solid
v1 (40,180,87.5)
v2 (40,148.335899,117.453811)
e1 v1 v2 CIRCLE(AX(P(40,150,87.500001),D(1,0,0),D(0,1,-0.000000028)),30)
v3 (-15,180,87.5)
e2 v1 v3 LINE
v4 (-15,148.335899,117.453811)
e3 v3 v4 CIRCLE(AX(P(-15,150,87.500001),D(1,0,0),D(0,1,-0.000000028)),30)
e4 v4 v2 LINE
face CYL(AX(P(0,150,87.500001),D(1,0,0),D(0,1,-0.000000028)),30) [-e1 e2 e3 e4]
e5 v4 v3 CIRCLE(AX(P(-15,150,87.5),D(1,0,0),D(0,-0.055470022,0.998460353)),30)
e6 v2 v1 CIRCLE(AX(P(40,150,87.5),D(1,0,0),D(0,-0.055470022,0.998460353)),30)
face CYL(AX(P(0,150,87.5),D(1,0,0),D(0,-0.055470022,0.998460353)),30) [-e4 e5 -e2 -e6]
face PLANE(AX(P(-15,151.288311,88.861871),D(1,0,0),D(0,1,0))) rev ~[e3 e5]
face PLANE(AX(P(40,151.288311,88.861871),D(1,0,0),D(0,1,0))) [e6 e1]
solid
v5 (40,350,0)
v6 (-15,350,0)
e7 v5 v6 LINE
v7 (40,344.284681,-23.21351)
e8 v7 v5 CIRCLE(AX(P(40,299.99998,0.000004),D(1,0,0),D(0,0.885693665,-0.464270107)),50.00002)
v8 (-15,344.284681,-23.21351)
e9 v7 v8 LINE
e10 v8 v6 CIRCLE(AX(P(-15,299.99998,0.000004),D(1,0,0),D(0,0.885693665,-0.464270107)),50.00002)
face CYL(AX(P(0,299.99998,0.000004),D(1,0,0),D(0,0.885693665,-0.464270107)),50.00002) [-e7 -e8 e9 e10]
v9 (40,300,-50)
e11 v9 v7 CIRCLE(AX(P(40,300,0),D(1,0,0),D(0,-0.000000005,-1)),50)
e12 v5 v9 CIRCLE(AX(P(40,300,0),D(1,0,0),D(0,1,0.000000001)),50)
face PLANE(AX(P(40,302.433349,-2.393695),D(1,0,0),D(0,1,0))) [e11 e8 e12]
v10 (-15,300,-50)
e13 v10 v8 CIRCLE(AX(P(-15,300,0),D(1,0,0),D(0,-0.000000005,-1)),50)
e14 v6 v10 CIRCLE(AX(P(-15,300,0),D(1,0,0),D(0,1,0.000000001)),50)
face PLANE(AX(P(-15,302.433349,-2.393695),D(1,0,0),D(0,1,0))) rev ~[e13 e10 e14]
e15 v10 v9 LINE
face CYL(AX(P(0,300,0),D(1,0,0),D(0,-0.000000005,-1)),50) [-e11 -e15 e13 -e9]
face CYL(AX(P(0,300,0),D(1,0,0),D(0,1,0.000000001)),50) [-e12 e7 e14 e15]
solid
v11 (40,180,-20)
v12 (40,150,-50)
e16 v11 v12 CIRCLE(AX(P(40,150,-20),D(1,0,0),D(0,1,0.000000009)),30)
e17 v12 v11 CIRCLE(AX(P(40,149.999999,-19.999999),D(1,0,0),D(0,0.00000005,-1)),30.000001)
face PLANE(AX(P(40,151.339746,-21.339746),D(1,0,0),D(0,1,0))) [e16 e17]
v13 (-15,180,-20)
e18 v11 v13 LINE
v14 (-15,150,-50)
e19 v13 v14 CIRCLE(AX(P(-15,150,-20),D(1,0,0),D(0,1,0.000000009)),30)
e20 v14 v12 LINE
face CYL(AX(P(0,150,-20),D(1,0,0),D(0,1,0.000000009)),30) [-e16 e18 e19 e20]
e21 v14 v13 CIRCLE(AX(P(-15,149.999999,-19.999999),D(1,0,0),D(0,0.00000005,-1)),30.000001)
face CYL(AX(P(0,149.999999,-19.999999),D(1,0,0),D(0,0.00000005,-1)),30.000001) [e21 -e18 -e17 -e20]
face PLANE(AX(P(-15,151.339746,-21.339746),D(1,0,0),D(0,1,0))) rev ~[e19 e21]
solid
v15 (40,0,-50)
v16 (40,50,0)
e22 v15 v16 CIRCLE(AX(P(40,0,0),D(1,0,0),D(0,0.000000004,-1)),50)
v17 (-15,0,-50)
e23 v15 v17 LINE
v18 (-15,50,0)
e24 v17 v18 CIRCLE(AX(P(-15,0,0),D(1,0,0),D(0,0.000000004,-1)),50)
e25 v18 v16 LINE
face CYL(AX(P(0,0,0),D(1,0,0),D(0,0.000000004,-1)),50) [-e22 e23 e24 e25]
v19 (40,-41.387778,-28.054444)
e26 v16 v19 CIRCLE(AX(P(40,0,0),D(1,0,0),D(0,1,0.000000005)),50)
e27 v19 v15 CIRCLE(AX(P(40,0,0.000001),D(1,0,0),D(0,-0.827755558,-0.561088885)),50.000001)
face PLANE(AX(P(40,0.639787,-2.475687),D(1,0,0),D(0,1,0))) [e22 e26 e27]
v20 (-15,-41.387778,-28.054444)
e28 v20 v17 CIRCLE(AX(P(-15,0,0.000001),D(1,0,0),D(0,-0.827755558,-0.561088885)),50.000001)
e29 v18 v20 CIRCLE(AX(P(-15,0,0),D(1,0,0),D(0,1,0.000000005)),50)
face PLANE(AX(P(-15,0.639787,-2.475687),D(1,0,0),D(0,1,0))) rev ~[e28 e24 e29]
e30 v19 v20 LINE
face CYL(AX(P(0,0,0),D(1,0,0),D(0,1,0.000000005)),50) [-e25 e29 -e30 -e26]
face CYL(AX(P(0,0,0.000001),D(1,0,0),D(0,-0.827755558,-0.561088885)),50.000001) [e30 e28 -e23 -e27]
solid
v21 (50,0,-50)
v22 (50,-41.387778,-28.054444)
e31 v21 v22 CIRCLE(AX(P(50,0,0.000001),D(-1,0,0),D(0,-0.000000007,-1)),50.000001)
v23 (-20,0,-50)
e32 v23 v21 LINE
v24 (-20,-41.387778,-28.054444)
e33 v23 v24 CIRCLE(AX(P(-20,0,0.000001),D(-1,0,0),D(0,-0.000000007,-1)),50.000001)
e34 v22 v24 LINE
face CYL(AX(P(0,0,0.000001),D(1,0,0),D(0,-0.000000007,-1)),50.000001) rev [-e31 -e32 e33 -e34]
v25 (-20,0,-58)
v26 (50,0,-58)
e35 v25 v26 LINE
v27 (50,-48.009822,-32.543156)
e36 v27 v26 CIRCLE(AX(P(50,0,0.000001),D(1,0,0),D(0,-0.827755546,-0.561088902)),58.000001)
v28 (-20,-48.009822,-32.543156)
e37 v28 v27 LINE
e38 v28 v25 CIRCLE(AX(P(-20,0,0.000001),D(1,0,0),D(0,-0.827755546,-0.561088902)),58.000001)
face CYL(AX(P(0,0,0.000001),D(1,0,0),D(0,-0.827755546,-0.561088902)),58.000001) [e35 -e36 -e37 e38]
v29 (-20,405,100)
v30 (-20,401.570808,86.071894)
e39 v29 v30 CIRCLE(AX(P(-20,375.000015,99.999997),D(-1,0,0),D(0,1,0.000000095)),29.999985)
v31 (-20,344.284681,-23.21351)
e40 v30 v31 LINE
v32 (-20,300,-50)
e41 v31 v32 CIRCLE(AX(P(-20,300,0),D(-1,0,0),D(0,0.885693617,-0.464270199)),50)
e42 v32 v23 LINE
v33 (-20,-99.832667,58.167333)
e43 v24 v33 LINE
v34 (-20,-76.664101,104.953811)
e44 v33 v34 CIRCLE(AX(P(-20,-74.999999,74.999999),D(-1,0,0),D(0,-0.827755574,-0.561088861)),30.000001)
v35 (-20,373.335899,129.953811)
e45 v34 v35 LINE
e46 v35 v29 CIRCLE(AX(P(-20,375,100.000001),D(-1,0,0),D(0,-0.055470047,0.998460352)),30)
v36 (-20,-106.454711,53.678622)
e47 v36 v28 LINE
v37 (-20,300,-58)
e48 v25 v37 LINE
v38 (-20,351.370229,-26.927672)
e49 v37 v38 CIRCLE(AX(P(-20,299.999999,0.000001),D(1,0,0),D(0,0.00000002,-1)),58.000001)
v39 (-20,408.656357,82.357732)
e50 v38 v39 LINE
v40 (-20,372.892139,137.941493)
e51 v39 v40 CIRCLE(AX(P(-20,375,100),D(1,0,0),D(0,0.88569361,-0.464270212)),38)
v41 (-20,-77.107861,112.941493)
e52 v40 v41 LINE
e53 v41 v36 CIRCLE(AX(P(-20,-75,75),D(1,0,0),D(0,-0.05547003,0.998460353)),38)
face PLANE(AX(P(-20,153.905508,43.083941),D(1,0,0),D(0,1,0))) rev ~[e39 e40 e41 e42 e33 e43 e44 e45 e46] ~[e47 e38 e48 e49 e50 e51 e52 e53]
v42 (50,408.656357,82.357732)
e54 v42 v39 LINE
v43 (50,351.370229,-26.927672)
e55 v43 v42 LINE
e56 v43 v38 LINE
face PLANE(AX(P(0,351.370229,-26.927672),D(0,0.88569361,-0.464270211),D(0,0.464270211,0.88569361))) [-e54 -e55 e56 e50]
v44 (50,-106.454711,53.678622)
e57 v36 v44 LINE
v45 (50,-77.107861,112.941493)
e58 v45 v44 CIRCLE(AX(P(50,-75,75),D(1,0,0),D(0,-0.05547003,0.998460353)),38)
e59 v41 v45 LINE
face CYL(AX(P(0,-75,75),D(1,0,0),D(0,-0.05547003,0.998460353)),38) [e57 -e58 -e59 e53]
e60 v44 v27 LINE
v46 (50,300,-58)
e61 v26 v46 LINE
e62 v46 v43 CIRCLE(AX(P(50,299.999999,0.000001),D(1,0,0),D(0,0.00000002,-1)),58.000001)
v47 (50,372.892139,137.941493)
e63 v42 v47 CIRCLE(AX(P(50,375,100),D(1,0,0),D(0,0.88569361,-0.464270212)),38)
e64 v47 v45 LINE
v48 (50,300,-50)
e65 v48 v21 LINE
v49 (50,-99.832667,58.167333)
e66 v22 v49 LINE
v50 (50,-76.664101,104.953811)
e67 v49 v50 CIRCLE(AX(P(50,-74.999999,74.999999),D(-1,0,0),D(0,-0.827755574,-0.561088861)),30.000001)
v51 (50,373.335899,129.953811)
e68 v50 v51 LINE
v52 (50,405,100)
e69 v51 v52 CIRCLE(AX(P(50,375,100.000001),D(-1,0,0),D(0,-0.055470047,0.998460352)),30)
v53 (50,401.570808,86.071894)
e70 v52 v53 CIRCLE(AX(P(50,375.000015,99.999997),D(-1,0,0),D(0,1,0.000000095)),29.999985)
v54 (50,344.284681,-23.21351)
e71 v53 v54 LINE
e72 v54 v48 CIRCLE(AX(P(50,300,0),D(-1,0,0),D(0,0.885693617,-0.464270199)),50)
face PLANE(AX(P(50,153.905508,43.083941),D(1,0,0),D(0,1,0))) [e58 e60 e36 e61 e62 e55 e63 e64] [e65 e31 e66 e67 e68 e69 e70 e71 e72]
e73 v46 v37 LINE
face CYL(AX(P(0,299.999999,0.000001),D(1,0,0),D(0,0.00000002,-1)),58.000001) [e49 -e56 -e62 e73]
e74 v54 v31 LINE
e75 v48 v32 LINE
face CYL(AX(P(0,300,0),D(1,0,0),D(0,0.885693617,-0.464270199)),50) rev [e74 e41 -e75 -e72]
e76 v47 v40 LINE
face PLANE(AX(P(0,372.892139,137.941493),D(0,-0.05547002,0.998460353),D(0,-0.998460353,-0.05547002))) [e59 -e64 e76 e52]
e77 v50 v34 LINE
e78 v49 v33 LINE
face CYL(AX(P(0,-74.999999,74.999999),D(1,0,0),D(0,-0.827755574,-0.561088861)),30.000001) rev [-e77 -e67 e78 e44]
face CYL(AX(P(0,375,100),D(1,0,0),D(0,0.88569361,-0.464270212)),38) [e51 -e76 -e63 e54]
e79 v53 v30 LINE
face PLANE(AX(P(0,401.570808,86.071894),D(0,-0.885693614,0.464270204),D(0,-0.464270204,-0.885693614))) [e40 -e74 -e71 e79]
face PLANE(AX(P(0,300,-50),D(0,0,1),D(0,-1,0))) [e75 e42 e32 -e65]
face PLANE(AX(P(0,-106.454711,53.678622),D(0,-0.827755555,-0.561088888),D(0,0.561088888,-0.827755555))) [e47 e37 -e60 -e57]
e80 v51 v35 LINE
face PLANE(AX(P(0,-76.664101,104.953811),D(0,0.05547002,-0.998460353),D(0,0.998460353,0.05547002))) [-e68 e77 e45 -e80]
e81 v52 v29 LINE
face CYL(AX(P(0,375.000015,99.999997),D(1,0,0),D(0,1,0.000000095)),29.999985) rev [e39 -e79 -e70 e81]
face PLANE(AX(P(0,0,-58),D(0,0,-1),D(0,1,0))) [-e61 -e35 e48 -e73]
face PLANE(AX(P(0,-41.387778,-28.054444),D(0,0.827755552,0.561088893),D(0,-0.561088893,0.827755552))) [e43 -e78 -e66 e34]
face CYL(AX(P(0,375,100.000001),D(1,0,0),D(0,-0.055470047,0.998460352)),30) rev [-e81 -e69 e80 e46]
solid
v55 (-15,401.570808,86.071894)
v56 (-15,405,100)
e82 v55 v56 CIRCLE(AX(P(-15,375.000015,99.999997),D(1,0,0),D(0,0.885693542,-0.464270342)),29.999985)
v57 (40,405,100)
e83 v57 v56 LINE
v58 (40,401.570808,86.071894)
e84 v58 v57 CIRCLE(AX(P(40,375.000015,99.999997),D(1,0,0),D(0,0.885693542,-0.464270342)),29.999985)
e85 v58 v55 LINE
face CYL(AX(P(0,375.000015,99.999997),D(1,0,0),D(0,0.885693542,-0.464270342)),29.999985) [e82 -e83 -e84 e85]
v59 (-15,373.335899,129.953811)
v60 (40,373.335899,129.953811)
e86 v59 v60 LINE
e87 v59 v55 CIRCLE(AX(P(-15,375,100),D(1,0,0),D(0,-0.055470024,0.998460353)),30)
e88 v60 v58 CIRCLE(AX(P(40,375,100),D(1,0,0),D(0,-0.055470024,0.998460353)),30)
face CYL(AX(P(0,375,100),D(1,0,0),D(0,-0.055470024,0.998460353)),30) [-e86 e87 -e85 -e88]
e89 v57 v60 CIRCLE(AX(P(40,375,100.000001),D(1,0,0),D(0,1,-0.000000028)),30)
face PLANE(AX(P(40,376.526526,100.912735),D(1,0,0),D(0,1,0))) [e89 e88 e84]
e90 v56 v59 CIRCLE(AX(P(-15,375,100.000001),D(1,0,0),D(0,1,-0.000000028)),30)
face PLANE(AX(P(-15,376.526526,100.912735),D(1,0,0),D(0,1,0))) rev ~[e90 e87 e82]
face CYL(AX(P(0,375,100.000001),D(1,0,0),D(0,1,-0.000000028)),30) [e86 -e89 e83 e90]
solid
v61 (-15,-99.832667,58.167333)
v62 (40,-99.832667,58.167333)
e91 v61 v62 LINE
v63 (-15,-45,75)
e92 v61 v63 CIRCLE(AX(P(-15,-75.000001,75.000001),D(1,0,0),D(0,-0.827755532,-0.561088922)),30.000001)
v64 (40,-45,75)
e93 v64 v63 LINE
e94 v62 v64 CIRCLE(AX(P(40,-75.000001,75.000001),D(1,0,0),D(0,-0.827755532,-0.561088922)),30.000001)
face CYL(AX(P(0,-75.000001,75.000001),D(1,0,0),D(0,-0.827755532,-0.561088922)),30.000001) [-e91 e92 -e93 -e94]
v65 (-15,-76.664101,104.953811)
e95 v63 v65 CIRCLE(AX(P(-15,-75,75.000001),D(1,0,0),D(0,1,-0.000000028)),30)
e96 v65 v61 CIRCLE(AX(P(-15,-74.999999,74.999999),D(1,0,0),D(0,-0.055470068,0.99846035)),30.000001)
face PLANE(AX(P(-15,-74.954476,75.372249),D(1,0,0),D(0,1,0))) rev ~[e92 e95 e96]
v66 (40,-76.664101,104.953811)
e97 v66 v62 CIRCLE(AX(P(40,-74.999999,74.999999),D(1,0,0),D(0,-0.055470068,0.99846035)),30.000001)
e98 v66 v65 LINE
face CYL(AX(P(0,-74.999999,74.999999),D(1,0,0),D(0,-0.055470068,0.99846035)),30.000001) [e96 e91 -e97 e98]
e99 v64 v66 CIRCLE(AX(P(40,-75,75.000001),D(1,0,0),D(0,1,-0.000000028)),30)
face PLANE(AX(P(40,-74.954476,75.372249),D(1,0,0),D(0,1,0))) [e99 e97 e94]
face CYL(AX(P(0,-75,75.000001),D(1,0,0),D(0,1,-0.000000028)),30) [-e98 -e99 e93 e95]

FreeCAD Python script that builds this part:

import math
import FreeCAD as App
import Part
import Sketcher
from FreeCAD import Vector

doc = App.newDocument("Part")
params = doc.addObject("Spreadsheet::Sheet", "Params")
for row, (alias, value) in enumerate([
    ("sketch1_radius", "50 mm"),
    ("sketch1_radius2", "50.000001 mm"),
    ("sketch1_radius3", "30.000001 mm"),
    ("sketch1_radius4", "30 mm"),
    ("sketch1_radius5", "30 mm"),
    ("pad1_length", "40 mm"),
    ("pad1_length2", "15 mm"),
    ("sketch2_radius", "38 mm"),
    ("sketch2_radius2", "58.000001 mm"),
    ("sketch2_radius3", "50.000001 mm"),
    ("sketch2_width", "300 mm"),
    ("pad2_length", "50 mm"),
    ("pad2_length2", "20 mm"),
], start=1):
    params.set(f"A{row}", alias)
    params.set(f"B{row}", "=" + value)
    params.setAlias(f"B{row}", alias)

body = doc.addObject("PartDesign::Body", "Body")
body.AllowCompound = True

# Sketch on YZ plane
sketch1 = doc.addObject("Sketcher::SketchObject", "Sketch")
body.addObject(sketch1)
sketch1.AttachmentSupport = (doc.YZ_Plane, [""])
sketch1.MapMode = "FlatFace"
sketch1.addGeometry([
    Part.ArcOfCircle(Part.Circle(Vector(0, 0, 0), Vector(0, 0, 1), 50), math.radians(-90), math.radians(0)),  # 0
    Part.ArcOfCircle(Part.Circle(Vector(0, 0, 0), Vector(0, 0, 1), 50), math.radians(0), math.radians(214.131134)),  # 1
    Part.ArcOfCircle(Part.Circle(Vector(0, 0.000001, 0), Vector(0, 0, 1), 50.000001), math.radians(-145.868865), math.radians(-90)),  # 2
    Part.ArcOfCircle(Part.Circle(Vector(-74.999999, 74.999999, 0), Vector(0, 0, 1), 30.000001), math.radians(93.179833), math.radians(214.131133)),  # 3
    Part.ArcOfCircle(Part.Circle(Vector(-75.000001, 75.000001, 0), Vector(0, 0, 1), 30.000001), math.radians(-145.868863), math.radians(-0.000002)),  # 4
    Part.ArcOfCircle(Part.Circle(Vector(-75, 75.000001, 0), Vector(0, 0, 1), 30), math.radians(-0.000002), math.radians(93.179832)),  # 5
    Part.ArcOfCircle(Part.Circle(Vector(150, 87.500001, 0), Vector(0, 0, 1), 30), math.radians(-0.000002), math.radians(93.179832)),  # 6
    Part.ArcOfCircle(Part.Circle(Vector(150, 87.5, 0), Vector(0, 0, 1), 30), math.radians(93.17983), math.radians(360)),  # 7
    Part.ArcOfCircle(Part.Circle(Vector(300, 0, 0), Vector(0, 0, 1), 50), math.radians(0), math.radians(270)),  # 8
    Part.ArcOfCircle(Part.Circle(Vector(300, 0, 0), Vector(0, 0, 1), 50), math.radians(-90), math.radians(-27.663001)),  # 9
    Part.ArcOfCircle(Part.Circle(Vector(299.99998, 0.000004, 0), Vector(0, 0, 1), 50.00002), math.radians(-27.662995), math.radians(-0.000005)),  # 10
    Part.ArcOfCircle(Part.Circle(Vector(375, 100.000001, 0), Vector(0, 0, 1), 30), math.radians(-0.000002), math.radians(93.179832)),  # 11
    Part.ArcOfCircle(Part.Circle(Vector(375, 100, 0), Vector(0, 0, 1), 30), math.radians(93.17983), math.radians(332.336998)),  # 12
    Part.ArcOfCircle(Part.Circle(Vector(375.000015, 99.999997, 0), Vector(0, 0, 1), 29.999985), math.radians(-27.66301), math.radians(0.000005)),  # 13
    Part.ArcOfCircle(Part.Circle(Vector(150, -20, 0), Vector(0, 0, 1), 30), math.radians(0), math.radians(270)),  # 14
    Part.ArcOfCircle(Part.Circle(Vector(149.999999, -19.999999, 0), Vector(0, 0, 1), 30.000001), math.radians(-89.999997), math.radians(-0.000003)),  # 15
], False)
sketch1.addConstraint([
    Sketcher.Constraint("Coincident", 0, 2, 1, 1),
    Sketcher.Constraint("Coincident", 1, 2, 2, 1),
    Sketcher.Constraint("Coincident", 2, 2, 0, 1),
    Sketcher.Constraint("Coincident", 3, 2, 4, 1),
    Sketcher.Constraint("Coincident", 4, 2, 5, 1),
    Sketcher.Constraint("Coincident", 5, 2, 3, 1),
    Sketcher.Constraint("Coincident", 6, 1, 7, 2),
    Sketcher.Constraint("Coincident", 7, 1, 6, 2),
    Sketcher.Constraint("Coincident", 8, 2, 9, 1),
    Sketcher.Constraint("Coincident", 9, 2, 10, 1),
    Sketcher.Constraint("Coincident", 10, 2, 8, 1),
    Sketcher.Constraint("Coincident", 11, 2, 12, 1),
    Sketcher.Constraint("Coincident", 12, 2, 13, 1),
    Sketcher.Constraint("Coincident", 13, 2, 11, 1),
    Sketcher.Constraint("Coincident", 14, 1, 15, 2),
    Sketcher.Constraint("Coincident", 15, 1, 14, 2),
    Sketcher.Constraint("Coincident", 0, 3, -1, 1),
    Sketcher.Constraint("Coincident", 1, 3, -1, 1),
    Sketcher.Constraint("Coincident", 4, 3, 3, 3),
    Sketcher.Constraint("Coincident", 9, 3, 8, 3),
    Sketcher.Constraint("Coincident", 12, 3, 11, 3),
    Sketcher.Constraint("PointOnObject", 8, 3, -1),
    Sketcher.Constraint("PointOnObject", 0, 2, -1),
    Sketcher.Constraint("PointOnObject", 2, 2, -2),
    Sketcher.Constraint("PointOnObject", 10, 2, -1),
    Sketcher.Constraint("Radius", 0, 50.0),
    Sketcher.Constraint("Radius", 2, 50.000001),
    Sketcher.Constraint("Radius", 3, 30.000001),
    Sketcher.Constraint("Radius", 5, 30.0),
    Sketcher.Constraint("Radius", 6, 30.0),
    Sketcher.Constraint("Radius", 7, 30.0),
    Sketcher.Constraint("Radius", 8, 50.0),
    Sketcher.Constraint("Radius", 11, 30.0),
    Sketcher.Constraint("Radius", 14, 30.0),
    Sketcher.Constraint("Radius", 15, 30.000001),
    Sketcher.Constraint("DistanceX", 3, 3, -1, 1, 74.999999),
    Sketcher.Constraint("DistanceY", -1, 1, 3, 3, 74.999999),
    Sketcher.Constraint("DistanceX", -1, 1, 6, 3, 150.0),
    Sketcher.Constraint("DistanceX", -1, 1, 8, 3, 300.0),
    Sketcher.Constraint("DistanceX", -1, 1, 11, 3, 375.0),
    Sketcher.Constraint("DistanceY", -1, 1, 11, 3, 100.000001),
    Sketcher.Constraint("DistanceX", -1, 1, 14, 3, 150.0),
    Sketcher.Constraint("DistanceY", 14, 3, -1, 1, 20.0),
    Sketcher.Constraint("DistanceY", -1, 1, 4, 2, 75.0),
    Sketcher.Constraint("DistanceX", -1, 1, 8, 2, 300.0),
    Sketcher.Constraint("DistanceY", -1, 1, 13, 2, 100.0),
    Sketcher.Constraint("DistanceY", 14, 1, -1, 1, 20.0),
    Sketcher.Constraint("DistanceX", -1, 1, 15, 1, 150.0),
    Sketcher.Constraint("DistanceY", -1, 1, 6, 3, 87.500001),
    Sketcher.Constraint("DistanceY", -1, 1, 6, 1, 87.5),
    Sketcher.Constraint("Radius", 10, 50.00002),
    Sketcher.Constraint("Radius", 13, 29.999985),
    Sketcher.Constraint("DistanceX", 5, 2, -1, 1, 76.664101),
    Sketcher.Constraint("DistanceX", -1, 1, 7, 1, 148.335899),
    Sketcher.Constraint("DistanceX", -1, 1, 11, 2, 373.335899),
    Sketcher.Constraint("DistanceX", 10, 3, 9, 2, 44.284701),
    Sketcher.Constraint("DistanceX", 1, 2, 1, 3, 41.387778),
    Sketcher.Constraint("DistanceX", 3, 2, 3, 3, 24.832668),
    Sketcher.Constraint("DistanceX", 12, 3, 12, 2, 26.570808),
])
sketch1.setExpression("Constraints[25]", "Params.sketch1_radius")
sketch1.setExpression("Constraints[26]", "Params.sketch1_radius2")
sketch1.setExpression("Constraints[27]", "Params.sketch1_radius3")
sketch1.setExpression("Constraints[28]", "Params.sketch1_radius4")
sketch1.setExpression("Constraints[29]", "Params.sketch1_radius5")
pad1 = doc.addObject("PartDesign::Pad", "Pad")
body.addObject(pad1)
pad1.Profile = sketch1
pad1.Type = "TwoLengths"
pad1.setExpression("Length", "Params.pad1_length")
pad1.setExpression("Length2", "Params.pad1_length2")
body2 = doc.addObject("PartDesign::Body", "Body001")

# Sketch on YZ plane
sketch2 = doc.addObject("Sketcher::SketchObject", "Sketch001")
body2.addObject(sketch2)
sketch2.AttachmentSupport = (doc.getObject("YZ_Plane001"), [""])
sketch2.MapMode = "FlatFace"
sketch2.addGeometry([
    Part.LineSegment(Vector(373, 138, 0), Vector(-77, 113, 0)),  # 0
    Part.ArcOfCircle(Part.Circle(Vector(-75, 75, 0), Vector(0, 0, 1), 38), math.radians(93), math.radians(214)),  # 1
    Part.LineSegment(Vector(-106, 54, 0), Vector(-48, -33, 0)),  # 2
    Part.ArcOfCircle(Part.Circle(Vector(0, 0, 0), Vector(0, 0, 1), 58), math.radians(-146), math.radians(-90)),  # 3
    Part.LineSegment(Vector(0, -58, 0), Vector(300, -58, 0)),  # 4
    Part.ArcOfCircle(Part.Circle(Vector(300, 0, 0), Vector(0, 0, 1), 58), math.radians(-90), math.radians(-28)),  # 5
    Part.LineSegment(Vector(351, -27, 0), Vector(409, 82, 0)),  # 6
    Part.ArcOfCircle(Part.Circle(Vector(375, 100, 0), Vector(0, 0, 1), 38), math.radians(-28), math.radians(93)),  # 7
    Part.LineSegment(Vector(300, -50, 0), Vector(0, -50, 0)),  # 8
    Part.ArcOfCircle(Part.Circle(Vector(0, 0, 0), Vector(0, 0, 1), 50), math.radians(-146), math.radians(-90)),  # 9
    Part.LineSegment(Vector(-41, -28, 0), Vector(-100, 58, 0)),  # 10
    Part.ArcOfCircle(Part.Circle(Vector(-75, 75, 0), Vector(0, 0, 1), 30), math.radians(93), math.radians(214)),  # 11
    Part.LineSegment(Vector(-77, 105, 0), Vector(373, 130, 0)),  # 12
    Part.ArcOfCircle(Part.Circle(Vector(375, 100, 0), Vector(0, 0, 1), 30), math.radians(0), math.radians(93)),  # 13
    Part.ArcOfCircle(Part.Circle(Vector(375, 100, 0), Vector(0, 0, 1), 30), math.radians(-28), math.radians(0)),  # 14
    Part.LineSegment(Vector(402, 86, 0), Vector(344, -23, 0)),  # 15
    Part.ArcOfCircle(Part.Circle(Vector(300, 0, 0), Vector(0, 0, 1), 50), math.radians(-90), math.radians(-28)),  # 16
], False)
sketch2.addConstraint([
    Sketcher.Constraint("Tangent", 0, 2, 1, 1),
    Sketcher.Constraint("Tangent", 1, 2, 2, 1),
    Sketcher.Constraint("Tangent", 2, 2, 3, 1),
    Sketcher.Constraint("Tangent", 3, 2, 4, 1),
    Sketcher.Constraint("Tangent", 4, 2, 5, 1),
    Sketcher.Constraint("Tangent", 5, 2, 6, 1),
    Sketcher.Constraint("Tangent", 6, 2, 7, 1),
    Sketcher.Constraint("Tangent", 7, 2, 0, 1),
    Sketcher.Constraint("Tangent", 8, 2, 9, 2),
    Sketcher.Constraint("Tangent", 9, 1, 10, 1),
    Sketcher.Constraint("Tangent", 10, 2, 11, 2),
    Sketcher.Constraint("Tangent", 11, 1, 12, 1),
    Sketcher.Constraint("Tangent", 12, 2, 13, 2),
    Sketcher.Constraint("Tangent", 13, 1, 14, 2),
    Sketcher.Constraint("Tangent", 14, 1, 15, 1),
    Sketcher.Constraint("Tangent", 15, 2, 16, 2),
    Sketcher.Constraint("Tangent", 16, 1, 8, 1),
    Sketcher.Constraint("Horizontal", 4),
    Sketcher.Constraint("Horizontal", 8),
    Sketcher.Constraint("Coincident", 3, 3, -1, 1),
    Sketcher.Constraint("Coincident", 9, 3, -1, 1),
    Sketcher.Constraint("Coincident", 11, 3, 1, 3),
    Sketcher.Constraint("Coincident", 13, 3, 7, 3),
    Sketcher.Constraint("Coincident", 16, 3, 5, 3),
    Sketcher.Constraint("Equal", 3, 5),
    Sketcher.Constraint("Equal", 1, 7),
    Sketcher.Constraint("Equal", 11, 13),
    Sketcher.Constraint("Parallel", 2, 10),
    Sketcher.Constraint("Parallel", 6, 15),
    Sketcher.Constraint("Horizontal", 7, 3, 13, 1),
    Sketcher.Constraint("Radius", 1, 38.0),
    Sketcher.Constraint("Radius", 3, 58.000001),
    Sketcher.Constraint("Radius", 9, 50.000001),
    Sketcher.Constraint("DistanceX", 4, 1, 4, 2, 300.0),
    Sketcher.Constraint("DistanceX", 1, 3, -1, 1, 75.0),
    Sketcher.Constraint("DistanceY", -1, 1, 1, 3, 75.0),
    Sketcher.Constraint("DistanceX", -1, 1, 7, 3, 375.0),
    Sketcher.Constraint("DistanceY", -1, 1, 7, 3, 100.0),
])
sketch2.setExpression("Constraints[30]", "Params.sketch2_radius")
sketch2.setExpression("Constraints[31]", "Params.sketch2_radius2")
sketch2.setExpression("Constraints[32]", "Params.sketch2_radius3")
sketch2.setExpression("Constraints[33]", "Params.sketch2_width")
pad2 = doc.addObject("PartDesign::Pad", "Pad001")
body2.addObject(pad2)
pad2.Profile = sketch2
pad2.Type = "TwoLengths"
pad2.setExpression("Length", "Params.pad2_length")
pad2.setExpression("Length2", "Params.pad2_length2")

doc.recompute()
